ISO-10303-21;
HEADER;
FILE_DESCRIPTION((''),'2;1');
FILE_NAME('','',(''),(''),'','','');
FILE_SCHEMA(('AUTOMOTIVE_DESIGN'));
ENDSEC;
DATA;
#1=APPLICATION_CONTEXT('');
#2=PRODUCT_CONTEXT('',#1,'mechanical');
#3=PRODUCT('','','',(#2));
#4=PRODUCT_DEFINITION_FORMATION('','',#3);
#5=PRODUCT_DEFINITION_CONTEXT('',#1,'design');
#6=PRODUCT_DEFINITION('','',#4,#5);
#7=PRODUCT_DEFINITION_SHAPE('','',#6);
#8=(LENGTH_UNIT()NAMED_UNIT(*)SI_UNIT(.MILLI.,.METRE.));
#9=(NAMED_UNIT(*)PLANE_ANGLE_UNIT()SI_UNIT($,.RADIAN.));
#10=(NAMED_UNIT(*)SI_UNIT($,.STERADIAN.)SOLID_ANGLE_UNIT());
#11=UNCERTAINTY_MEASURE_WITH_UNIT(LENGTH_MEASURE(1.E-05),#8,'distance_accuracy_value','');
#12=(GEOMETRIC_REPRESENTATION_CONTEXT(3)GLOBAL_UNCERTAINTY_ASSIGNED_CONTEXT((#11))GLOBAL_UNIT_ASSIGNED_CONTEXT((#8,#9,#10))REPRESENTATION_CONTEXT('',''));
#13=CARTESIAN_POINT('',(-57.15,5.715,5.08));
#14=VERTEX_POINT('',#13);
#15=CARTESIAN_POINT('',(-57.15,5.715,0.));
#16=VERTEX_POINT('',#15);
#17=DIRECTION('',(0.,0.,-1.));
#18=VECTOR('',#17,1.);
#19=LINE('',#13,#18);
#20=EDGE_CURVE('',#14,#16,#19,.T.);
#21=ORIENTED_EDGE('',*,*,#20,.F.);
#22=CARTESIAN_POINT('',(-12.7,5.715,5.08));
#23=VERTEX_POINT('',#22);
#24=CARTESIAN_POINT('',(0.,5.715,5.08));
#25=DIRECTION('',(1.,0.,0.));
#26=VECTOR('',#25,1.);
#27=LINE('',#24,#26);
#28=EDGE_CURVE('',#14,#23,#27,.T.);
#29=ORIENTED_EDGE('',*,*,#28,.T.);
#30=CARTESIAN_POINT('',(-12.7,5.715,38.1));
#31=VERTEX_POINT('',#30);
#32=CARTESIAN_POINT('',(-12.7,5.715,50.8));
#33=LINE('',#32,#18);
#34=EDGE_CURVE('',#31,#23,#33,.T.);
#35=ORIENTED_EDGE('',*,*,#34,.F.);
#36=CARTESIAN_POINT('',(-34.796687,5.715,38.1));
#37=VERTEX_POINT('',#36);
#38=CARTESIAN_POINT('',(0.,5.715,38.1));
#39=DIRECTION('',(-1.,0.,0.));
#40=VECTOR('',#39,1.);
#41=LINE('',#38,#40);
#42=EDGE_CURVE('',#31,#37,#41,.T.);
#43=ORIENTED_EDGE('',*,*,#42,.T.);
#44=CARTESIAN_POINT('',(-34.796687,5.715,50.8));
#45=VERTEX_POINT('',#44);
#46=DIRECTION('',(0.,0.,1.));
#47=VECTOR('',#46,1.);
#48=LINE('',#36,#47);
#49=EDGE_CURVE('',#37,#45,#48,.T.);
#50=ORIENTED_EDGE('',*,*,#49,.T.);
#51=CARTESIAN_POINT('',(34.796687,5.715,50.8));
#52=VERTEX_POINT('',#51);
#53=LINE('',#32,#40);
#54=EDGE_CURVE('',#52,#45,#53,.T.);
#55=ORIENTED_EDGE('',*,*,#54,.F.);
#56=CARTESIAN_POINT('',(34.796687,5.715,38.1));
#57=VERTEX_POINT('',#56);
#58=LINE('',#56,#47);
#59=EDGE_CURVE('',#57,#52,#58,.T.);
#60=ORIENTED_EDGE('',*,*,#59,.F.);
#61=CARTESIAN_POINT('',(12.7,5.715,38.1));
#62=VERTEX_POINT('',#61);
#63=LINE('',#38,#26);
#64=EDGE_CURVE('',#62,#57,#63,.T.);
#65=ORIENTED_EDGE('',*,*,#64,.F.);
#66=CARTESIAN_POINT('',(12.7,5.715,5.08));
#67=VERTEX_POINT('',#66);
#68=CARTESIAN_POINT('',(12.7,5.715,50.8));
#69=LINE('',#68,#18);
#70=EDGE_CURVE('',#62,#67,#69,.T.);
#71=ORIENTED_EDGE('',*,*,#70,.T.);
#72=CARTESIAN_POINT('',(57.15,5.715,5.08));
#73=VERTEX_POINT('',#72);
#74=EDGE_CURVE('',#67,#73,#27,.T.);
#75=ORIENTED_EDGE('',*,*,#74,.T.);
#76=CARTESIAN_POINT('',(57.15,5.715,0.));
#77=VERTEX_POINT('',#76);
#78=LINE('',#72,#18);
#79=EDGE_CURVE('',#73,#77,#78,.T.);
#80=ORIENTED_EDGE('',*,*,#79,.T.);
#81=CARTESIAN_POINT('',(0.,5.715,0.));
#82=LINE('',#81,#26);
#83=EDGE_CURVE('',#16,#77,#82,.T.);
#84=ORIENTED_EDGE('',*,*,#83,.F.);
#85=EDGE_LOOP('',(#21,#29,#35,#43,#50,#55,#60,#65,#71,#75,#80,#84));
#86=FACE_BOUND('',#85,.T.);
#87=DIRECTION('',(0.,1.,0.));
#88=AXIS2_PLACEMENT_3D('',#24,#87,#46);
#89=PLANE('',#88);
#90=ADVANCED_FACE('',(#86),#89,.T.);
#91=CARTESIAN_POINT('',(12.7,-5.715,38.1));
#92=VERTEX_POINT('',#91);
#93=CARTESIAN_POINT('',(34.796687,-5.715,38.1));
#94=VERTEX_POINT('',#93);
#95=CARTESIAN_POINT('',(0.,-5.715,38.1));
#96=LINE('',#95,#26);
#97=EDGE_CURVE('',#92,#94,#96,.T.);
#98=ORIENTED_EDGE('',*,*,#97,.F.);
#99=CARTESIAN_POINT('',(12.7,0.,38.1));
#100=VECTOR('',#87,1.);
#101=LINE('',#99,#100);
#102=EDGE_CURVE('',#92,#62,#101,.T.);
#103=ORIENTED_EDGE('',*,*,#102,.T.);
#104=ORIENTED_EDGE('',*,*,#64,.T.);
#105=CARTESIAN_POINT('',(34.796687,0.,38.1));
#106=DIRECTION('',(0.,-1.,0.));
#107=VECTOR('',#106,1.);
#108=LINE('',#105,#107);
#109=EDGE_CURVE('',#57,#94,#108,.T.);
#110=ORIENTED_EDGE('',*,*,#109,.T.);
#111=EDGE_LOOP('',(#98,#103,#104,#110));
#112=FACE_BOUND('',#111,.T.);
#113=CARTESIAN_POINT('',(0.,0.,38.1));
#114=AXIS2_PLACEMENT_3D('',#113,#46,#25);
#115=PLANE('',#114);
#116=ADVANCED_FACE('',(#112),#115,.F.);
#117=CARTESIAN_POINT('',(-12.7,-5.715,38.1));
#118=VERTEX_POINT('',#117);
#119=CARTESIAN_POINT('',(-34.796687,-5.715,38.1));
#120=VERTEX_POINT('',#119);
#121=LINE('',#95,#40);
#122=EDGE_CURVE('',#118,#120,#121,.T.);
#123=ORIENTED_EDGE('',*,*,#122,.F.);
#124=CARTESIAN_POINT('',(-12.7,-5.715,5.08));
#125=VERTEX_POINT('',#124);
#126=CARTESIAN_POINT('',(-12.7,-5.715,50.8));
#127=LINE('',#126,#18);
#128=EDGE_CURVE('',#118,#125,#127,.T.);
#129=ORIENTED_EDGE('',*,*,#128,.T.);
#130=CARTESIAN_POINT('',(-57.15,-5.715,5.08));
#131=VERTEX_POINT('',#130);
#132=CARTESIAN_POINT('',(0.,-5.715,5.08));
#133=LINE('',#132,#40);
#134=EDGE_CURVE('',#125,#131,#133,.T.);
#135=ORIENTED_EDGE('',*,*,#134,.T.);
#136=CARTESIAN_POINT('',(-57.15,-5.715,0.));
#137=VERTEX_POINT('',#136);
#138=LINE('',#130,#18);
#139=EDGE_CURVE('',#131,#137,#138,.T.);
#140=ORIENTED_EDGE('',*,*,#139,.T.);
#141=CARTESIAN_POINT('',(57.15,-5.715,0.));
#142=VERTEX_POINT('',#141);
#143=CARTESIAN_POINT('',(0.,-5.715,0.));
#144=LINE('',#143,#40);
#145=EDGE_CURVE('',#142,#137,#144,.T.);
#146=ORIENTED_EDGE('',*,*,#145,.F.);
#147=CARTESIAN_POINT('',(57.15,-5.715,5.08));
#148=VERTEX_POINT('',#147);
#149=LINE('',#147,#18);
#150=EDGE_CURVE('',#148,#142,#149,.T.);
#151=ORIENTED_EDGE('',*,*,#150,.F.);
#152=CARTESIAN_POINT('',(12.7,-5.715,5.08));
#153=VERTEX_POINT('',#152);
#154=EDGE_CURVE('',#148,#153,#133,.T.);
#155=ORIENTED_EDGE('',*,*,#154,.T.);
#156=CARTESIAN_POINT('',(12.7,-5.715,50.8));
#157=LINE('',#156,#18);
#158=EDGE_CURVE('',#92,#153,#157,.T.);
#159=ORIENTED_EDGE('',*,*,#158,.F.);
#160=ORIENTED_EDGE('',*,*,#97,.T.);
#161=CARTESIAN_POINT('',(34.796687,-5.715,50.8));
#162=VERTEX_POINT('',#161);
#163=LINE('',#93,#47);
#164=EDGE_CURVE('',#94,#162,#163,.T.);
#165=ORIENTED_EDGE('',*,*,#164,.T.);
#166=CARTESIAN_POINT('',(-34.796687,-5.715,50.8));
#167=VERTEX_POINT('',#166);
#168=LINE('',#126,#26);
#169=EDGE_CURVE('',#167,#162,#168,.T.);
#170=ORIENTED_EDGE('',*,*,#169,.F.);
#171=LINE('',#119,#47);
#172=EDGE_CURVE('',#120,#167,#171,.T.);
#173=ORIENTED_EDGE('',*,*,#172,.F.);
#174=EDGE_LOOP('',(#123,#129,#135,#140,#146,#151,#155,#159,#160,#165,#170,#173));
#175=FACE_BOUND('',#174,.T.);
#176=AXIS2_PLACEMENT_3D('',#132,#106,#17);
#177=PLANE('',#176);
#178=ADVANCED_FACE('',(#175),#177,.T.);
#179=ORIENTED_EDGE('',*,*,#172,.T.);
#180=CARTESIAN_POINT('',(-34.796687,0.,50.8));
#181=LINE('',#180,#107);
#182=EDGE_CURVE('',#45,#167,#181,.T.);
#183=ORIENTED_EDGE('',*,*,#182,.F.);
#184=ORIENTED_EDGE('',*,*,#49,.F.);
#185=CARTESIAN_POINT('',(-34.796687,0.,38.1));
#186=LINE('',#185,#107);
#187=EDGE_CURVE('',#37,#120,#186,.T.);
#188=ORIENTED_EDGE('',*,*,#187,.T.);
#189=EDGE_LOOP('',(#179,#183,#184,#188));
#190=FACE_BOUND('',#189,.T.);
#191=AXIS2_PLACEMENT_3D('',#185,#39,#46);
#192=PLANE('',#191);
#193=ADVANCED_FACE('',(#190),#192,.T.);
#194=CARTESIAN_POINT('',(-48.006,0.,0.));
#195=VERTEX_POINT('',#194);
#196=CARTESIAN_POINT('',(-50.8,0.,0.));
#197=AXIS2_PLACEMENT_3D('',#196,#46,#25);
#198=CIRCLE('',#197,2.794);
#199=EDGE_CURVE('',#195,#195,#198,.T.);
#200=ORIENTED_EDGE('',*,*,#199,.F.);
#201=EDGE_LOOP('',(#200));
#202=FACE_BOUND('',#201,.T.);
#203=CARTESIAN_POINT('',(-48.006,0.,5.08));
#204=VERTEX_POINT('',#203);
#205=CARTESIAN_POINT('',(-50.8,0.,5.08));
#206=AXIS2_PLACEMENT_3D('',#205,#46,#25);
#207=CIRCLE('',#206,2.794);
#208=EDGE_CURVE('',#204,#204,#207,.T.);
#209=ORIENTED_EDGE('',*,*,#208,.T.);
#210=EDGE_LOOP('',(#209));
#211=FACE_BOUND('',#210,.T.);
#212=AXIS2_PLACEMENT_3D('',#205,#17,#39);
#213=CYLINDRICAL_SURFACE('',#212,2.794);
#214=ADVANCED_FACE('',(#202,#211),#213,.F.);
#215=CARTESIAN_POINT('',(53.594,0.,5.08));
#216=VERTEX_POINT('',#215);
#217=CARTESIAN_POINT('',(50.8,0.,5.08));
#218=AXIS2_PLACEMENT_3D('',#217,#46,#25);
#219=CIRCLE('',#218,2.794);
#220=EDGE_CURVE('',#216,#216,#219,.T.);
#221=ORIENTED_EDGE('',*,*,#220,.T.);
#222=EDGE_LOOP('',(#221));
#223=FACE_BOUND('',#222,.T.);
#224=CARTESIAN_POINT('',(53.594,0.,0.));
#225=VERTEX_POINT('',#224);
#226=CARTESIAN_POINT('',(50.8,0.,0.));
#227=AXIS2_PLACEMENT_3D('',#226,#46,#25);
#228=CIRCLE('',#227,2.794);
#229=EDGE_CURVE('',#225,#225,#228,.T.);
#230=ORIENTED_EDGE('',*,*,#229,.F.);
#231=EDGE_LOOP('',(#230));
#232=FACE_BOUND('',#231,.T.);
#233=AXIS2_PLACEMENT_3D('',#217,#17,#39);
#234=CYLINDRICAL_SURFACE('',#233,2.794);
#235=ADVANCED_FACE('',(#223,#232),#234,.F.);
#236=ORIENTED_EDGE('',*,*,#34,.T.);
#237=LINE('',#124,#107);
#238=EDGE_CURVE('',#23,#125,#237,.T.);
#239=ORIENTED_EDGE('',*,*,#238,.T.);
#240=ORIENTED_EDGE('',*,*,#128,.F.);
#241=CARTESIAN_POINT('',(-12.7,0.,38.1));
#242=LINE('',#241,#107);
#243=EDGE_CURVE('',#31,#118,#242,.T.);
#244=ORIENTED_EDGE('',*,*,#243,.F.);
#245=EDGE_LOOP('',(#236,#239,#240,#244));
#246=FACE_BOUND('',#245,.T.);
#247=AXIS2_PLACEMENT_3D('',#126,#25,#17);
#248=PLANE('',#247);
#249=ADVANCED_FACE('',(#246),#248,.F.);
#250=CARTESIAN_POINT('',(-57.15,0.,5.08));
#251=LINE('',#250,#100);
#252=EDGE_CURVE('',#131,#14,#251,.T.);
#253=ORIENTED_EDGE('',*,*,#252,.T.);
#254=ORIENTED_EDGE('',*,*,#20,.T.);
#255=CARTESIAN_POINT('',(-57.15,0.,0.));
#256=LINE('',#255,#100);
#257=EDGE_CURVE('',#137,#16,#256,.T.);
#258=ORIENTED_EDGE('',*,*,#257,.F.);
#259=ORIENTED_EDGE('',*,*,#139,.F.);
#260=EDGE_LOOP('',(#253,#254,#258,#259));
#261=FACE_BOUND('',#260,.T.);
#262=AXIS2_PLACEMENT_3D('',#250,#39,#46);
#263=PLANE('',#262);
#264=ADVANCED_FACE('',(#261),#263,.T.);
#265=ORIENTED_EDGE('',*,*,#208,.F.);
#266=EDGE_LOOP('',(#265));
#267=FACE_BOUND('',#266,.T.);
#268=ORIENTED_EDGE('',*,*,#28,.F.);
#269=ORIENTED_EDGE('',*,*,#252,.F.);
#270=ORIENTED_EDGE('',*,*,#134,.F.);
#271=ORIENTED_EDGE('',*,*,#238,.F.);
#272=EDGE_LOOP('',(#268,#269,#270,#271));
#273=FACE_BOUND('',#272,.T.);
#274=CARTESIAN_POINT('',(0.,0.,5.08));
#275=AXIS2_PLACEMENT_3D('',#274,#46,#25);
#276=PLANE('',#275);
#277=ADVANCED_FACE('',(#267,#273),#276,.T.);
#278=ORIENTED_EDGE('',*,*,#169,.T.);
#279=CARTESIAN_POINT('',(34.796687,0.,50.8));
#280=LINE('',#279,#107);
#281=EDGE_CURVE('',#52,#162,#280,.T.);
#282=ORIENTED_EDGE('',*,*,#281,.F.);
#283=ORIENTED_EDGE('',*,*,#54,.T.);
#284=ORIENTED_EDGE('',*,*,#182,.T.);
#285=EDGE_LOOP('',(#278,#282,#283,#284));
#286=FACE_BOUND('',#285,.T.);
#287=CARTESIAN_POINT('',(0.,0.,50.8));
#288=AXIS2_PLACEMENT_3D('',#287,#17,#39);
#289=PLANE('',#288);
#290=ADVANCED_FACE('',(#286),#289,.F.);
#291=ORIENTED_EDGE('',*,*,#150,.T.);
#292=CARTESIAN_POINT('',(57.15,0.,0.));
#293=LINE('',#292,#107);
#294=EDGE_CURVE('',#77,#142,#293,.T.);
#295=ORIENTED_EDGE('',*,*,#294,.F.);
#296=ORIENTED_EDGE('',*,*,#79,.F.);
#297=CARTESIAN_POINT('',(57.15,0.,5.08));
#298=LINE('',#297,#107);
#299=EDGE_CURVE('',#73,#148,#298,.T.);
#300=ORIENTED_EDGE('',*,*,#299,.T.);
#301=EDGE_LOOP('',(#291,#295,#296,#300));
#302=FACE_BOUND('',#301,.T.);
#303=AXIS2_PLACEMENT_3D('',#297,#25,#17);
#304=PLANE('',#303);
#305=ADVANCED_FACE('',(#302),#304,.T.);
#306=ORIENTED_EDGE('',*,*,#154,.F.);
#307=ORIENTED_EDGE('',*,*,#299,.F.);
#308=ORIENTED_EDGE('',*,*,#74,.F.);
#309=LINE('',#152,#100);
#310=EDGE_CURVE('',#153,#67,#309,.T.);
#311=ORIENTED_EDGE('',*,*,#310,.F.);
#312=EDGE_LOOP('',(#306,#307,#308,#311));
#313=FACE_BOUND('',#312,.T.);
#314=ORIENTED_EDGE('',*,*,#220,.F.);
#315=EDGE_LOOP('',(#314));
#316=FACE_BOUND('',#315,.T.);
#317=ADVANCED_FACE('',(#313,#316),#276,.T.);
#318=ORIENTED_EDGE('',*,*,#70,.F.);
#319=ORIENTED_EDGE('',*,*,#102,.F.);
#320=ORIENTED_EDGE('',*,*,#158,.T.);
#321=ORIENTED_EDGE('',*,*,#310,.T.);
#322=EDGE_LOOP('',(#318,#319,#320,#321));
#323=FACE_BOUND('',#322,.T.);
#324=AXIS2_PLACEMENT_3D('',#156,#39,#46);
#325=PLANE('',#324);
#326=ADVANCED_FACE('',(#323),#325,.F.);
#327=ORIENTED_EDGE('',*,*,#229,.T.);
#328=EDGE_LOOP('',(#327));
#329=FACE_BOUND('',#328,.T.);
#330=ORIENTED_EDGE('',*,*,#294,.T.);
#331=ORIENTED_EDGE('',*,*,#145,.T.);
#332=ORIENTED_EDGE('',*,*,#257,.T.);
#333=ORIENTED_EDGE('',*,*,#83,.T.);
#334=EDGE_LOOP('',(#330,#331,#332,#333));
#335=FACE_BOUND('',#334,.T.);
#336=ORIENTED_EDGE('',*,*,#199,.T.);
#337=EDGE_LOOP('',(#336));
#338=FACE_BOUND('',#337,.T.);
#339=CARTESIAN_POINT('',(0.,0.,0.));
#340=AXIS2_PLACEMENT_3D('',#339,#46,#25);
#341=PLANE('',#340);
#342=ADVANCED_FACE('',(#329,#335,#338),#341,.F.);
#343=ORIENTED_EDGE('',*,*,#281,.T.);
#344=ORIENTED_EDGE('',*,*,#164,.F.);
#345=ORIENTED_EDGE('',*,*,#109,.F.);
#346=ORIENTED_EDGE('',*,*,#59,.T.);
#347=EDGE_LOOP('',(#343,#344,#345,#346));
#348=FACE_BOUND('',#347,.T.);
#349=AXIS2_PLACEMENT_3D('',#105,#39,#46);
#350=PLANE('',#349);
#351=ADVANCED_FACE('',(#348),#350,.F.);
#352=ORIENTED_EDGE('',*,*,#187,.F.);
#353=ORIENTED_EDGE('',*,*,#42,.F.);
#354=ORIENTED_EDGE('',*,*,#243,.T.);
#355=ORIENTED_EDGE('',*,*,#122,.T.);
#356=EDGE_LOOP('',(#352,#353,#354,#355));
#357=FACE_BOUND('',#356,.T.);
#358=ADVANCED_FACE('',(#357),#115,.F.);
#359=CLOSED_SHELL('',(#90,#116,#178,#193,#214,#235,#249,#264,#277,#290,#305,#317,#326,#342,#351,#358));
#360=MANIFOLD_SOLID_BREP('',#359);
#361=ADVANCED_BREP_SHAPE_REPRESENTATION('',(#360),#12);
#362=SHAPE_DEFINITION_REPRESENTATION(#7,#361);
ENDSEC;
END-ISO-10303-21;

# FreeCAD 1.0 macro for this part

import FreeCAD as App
import Part
import Sketcher

V = App.Vector
Q = App.Units.Quantity


def add_polygon(sketch, points):
    """Adds a closed chain of lines whose ends are joined by coincident constraints."""
    first, n = sketch.GeometryCount, len(points)
    for a, b in zip(points, points[1:] + points[:1]):
        sketch.addGeometry(Part.LineSegment(App.Vector(*a, 0), App.Vector(*b, 0)), False)
    for i in range(n):
        sketch.addConstraint(Sketcher.Constraint("Coincident", first + i, 2, first + (i + 1) % n, 1))

doc = App.newDocument("Part")
params = doc.addObject("Spreadsheet::Sheet", "Params")
for row, (alias, value) in enumerate([
    ("sketch1_diameter", "0.22 in"),
    ("sketch1_width", "4.5 in"),
    ("sketch1_height", "0.45 in"),
    ("pad1_length", "0.2 in"),
    ("sketch2_width", "1 in"),
    ("sketch2_height", "0.45 in"),
    ("pad2_length", "1.8 in"),
    ("sketch3_height", "0.45 in"),
    ("pad3_length", "0.5 in"),
], start=1):
    params.set(f"A{row}", alias)
    params.set(f"B{row}", "=" + value)
    params.setAlias(f"B{row}", alias)

body = doc.addObject("PartDesign::Body", "Body")

sketch1 = doc.addObject("Sketcher::SketchObject", "Sketch")
body.addObject(sketch1)
sketch1.AttachmentSupport = (doc.XY_Plane, [""])
sketch1.MapMode = "FlatFace"
add_polygon(sketch1, [(-57.1, -5.7), (57.1, -5.7), (57.1, 5.7), (-57.1, 5.7)])
sketch1.addGeometry(Part.Circle(V(-50.8, 0, 0), V(0, 0, 1), 2.8), False)
sketch1.addGeometry(Part.Circle(V(50.8, 0, 0), V(0, 0, 1), 2.8), False)
sketch1.addConstraint([
    Sketcher.Constraint("Horizontal", 0),
    Sketcher.Constraint("Vertical", 1),
    Sketcher.Constraint("Horizontal", 2),
    Sketcher.Constraint("Vertical", 3),
    Sketcher.Constraint("Equal", 4, 5),
    Sketcher.Constraint("Symmetric", 4, 3, 5, 3, -1, 1),
    Sketcher.Constraint("Symmetric", 0, 2, 2, 2, -1, 1),
    Sketcher.Constraint("PointOnObject", 4, 3, -1),
    Sketcher.Constraint("Diameter", 4, Q("0.22 in")),
    Sketcher.Constraint("DistanceX", 0, 1, 0, 2, Q("4.5 in")),
    Sketcher.Constraint("DistanceX", 4, 3, -1, 1, Q("2 in")),
    Sketcher.Constraint("DistanceY", 1, 1, 1, 2, Q("0.45 in")),
])
sketch1.setExpression("Constraints[12]", "Params.sketch1_diameter")
sketch1.setExpression("Constraints[13]", "Params.sketch1_width")
sketch1.setExpression("Constraints[15]", "Params.sketch1_height")
pad1 = doc.addObject("PartDesign::Pad", "Pad")
body.addObject(pad1)
pad1.Profile = sketch1
pad1.setExpression("Length", "Params.pad1_length")

sketch2 = doc.addObject("Sketcher::SketchObject", "Sketch001")
body.addObject(sketch2)
sketch2.AttachmentSupport = (doc.XY_Plane, [""])
sketch2.MapMode = "FlatFace"
sketch2.AttachmentOffset = App.Placement(V(0, 0, 0.2 * 25.4), App.Rotation())
add_polygon(sketch2, [(-13, 6), (-13, -6), (13, -6), (13, 6)])
sketch2.addConstraint([
    Sketcher.Constraint("Vertical", 0),
    Sketcher.Constraint("Horizontal", 1),
    Sketcher.Constraint("Vertical", 2),
    Sketcher.Constraint("Horizontal", 3),
    Sketcher.Constraint("Symmetric", 0, 2, 2, 2, -1, 1),
    Sketcher.Constraint("DistanceX", 1, 1, 1, 2, Q("1 in")),
    Sketcher.Constraint("DistanceY", 0, 2, 0, 1, Q("0.45 in")),
])
sketch2.setExpression("Constraints[9]", "Params.sketch2_width")
sketch2.setExpression("Constraints[10]", "Params.sketch2_height")
pad2 = doc.addObject("PartDesign::Pad", "Pad001")
body.addObject(pad2)
pad2.Profile = sketch2
pad2.setExpression("Length", "Params.pad2_length")

sketch3 = doc.addObject("Sketcher::SketchObject", "Sketch002")
body.addObject(sketch3)
sketch3.AttachmentSupport = (doc.XY_Plane, [""])
sketch3.MapMode = "FlatFace"
sketch3.AttachmentOffset = App.Placement(V(0, 0, 2 * 25.4), App.Rotation())
add_polygon(sketch3, [(13, 6), (13, -6), (35, -6), (35, 6)])
add_polygon(sketch3, [(-35, 6), (-35, -6), (-13, -6), (-13, 6)])
sketch3.addConstraint([
    Sketcher.Constraint("Vertical", 0),
    Sketcher.Constraint("Horizontal", 1),
    Sketcher.Constraint("Vertical", 2),
    Sketcher.Constraint("Horizontal", 3),
    Sketcher.Constraint("Vertical", 4),
    Sketcher.Constraint("Horizontal", 5),
    Sketcher.Constraint("Vertical", 6),
    Sketcher.Constraint("Horizontal", 7),
    Sketcher.Constraint("Symmetric", 2, 2, 4, 2, -1, 1),
    Sketcher.Constraint("Symmetric", 0, 2, 6, 2, -1, 1),
    Sketcher.Constraint("Horizontal", 1, 2, 4, 2),
    Sketcher.Constraint("DistanceX", 5, 2, 0, 2, Q("1 in")),
    Sketcher.Constraint("DistanceY", 0, 2, 0, 1, Q("0.45 in")),
    Sketcher.Constraint("DistanceX", 1, 1, 1, 2, 22.096687),
])
sketch3.setExpression("Constraints[20]", "Params.sketch3_height")
pad3 = doc.addObject("PartDesign::Pad", "Pad002")
body.addObject(pad3)
pad3.Profile = sketch3
pad3.setExpression("Length", "Params.pad3_length")
pad3.Reversed = True

doc.recompute()
